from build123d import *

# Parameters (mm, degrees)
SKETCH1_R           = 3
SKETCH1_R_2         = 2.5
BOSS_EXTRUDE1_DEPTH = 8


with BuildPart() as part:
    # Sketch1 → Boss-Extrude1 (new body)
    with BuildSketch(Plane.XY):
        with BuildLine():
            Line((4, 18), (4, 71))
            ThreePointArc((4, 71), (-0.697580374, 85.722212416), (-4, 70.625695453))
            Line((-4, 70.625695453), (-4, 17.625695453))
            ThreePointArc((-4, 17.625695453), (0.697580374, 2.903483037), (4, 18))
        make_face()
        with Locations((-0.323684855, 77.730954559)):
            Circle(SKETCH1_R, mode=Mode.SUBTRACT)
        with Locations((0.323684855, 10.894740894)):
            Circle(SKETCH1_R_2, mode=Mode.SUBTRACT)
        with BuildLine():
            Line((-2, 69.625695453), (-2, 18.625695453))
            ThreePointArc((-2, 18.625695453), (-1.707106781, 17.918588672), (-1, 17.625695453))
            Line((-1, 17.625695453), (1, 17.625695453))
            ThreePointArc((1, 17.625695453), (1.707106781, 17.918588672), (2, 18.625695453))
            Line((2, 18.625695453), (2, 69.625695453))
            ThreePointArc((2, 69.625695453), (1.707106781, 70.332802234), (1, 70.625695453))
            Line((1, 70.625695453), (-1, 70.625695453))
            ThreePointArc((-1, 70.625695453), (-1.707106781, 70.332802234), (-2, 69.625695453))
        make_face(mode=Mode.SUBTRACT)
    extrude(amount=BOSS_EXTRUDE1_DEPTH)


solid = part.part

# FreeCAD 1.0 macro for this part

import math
import FreeCAD as App
import Part
import Sketcher
from FreeCAD import Vector

doc = App.newDocument("Part")
body = doc.addObject("PartDesign::Body", "Body")

# Sketch on XY plane
sketch1 = doc.addObject("Sketcher::SketchObject", "Sketch")
body.addObject(sketch1)
sketch1.AttachmentSupport = (doc.XY_Plane, [""])
sketch1.MapMode = "FlatFace"
sketch1.addGeometry([
    Part.LineSegment(Vector(4, 18, 0), Vector(4, 71, 0)),  # 0
    Part.ArcOfCircle(Part.Circle(Vector(-0.323685, 77.730955, 0), Vector(0, 0, 1), 8), math.radians(-57.285), math.radians(242.642611)),  # 1
    Part.LineSegment(Vector(-4, 70.625695, 0), Vector(-4, 17.625695, 0)),  # 2
    Part.ArcOfCircle(Part.Circle(Vector(0.323685, 10.894741, 0), Vector(0, 0, 1), 8), math.radians(122.715), math.radians(422.642611)),  # 3
    Part.Circle(Vector(0.323685, 10.894741, 0), Vector(0, 0, 1), 2.5),  # 4
    Part.LineSegment(Vector(-2, 18.625695, 0), Vector(-2, 69.625695, 0)),  # 5
    Part.ArcOfCircle(Part.Circle(Vector(-1, 69.625695, 0), Vector(0, 0, 1), 1), math.radians(90), math.radians(180)),  # 6
    Part.LineSegment(Vector(-1, 70.625695, 0), Vector(1, 70.625695, 0)),  # 7
    Part.ArcOfCircle(Part.Circle(Vector(1, 69.625695, 0), Vector(0, 0, 1), 1), math.radians(0), math.radians(90)),  # 8
    Part.LineSegment(Vector(2, 69.625695, 0), Vector(2, 18.625695, 0)),  # 9
    Part.ArcOfCircle(Part.Circle(Vector(1, 18.625695, 0), Vector(0, 0, 1), 1), math.radians(-90), math.radians(0)),  # 10
    Part.LineSegment(Vector(1, 17.625695, 0), Vector(-1, 17.625695, 0)),  # 11
    Part.ArcOfCircle(Part.Circle(Vector(-1, 18.625695, 0), Vector(0, 0, 1), 1), math.radians(-180), math.radians(-90)),  # 12
    Part.Circle(Vector(-0.323685, 77.730955, 0), Vector(0, 0, 1), 3),  # 13
], False)
sketch1.addConstraint([
    Sketcher.Constraint("Coincident", 0, 2, 1, 1),
    Sketcher.Constraint("Coincident", 1, 2, 2, 1),
    Sketcher.Constraint("Coincident", 2, 2, 3, 1),
    Sketcher.Constraint("Coincident", 3, 2, 0, 1),
    Sketcher.Constraint("Tangent", 5, 2, 6, 2),
    Sketcher.Constraint("Tangent", 6, 1, 7, 1),
    Sketcher.Constraint("Tangent", 7, 2, 8, 2),
    Sketcher.Constraint("Tangent", 8, 1, 9, 1),
    Sketcher.Constraint("Tangent", 9, 2, 10, 2),
    Sketcher.Constraint("Tangent", 10, 1, 11, 1),
    Sketcher.Constraint("Tangent", 11, 2, 12, 2),
    Sketcher.Constraint("Tangent", 12, 1, 5, 1),
    Sketcher.Constraint("Vertical", 0),
    Sketcher.Constraint("Vertical", 2),
    Sketcher.Constraint("Vertical", 5),
    Sketcher.Constraint("Horizontal", 7),
    Sketcher.Constraint("Vertical", 9),
    Sketcher.Constraint("Horizontal", 11),
    Sketcher.Constraint("Coincident", 4, 3, 3, 3),
    Sketcher.Constraint("Coincident", 13, 3, 1, 3),
    Sketcher.Constraint("Equal", 1, 3),
    Sketcher.Constraint("Equal", 6, 8),
    Sketcher.Constraint("Equal", 8, 10),
    Sketcher.Constraint("Equal", 10, 12),
    Sketcher.Constraint("Horizontal", 1, 2, 6, 1),
    Sketcher.Constraint("Horizontal", 2, 2, 10, 1),
    Sketcher.Constraint("Equal", 0, 2),
    Sketcher.Constraint("Diameter", 4, 5.0),
    Sketcher.Constraint("Diameter", 13, 6.0),
    Sketcher.Constraint("Radius", 1, 8.0),
    Sketcher.Constraint("Radius", 6, 1.0),
    Sketcher.Constraint("DistanceX", 7, 1, 7, 2, 2.0),
    Sketcher.Constraint("DistanceY", 0, 1, 0, 2, 53.0),
    Sketcher.Constraint("DistanceX", 6, 3, -1, 1, 1.0),
    Sketcher.Constraint("DistanceX", -1, 1, 0, 2, 4.0),
    Sketcher.Constraint("DistanceY", -1, 1, 0, 2, 71.0),
    Sketcher.Constraint("DistanceX", 1, 2, -1, 1, 4.0),
    Sketcher.Constraint("DistanceY", -1, 1, 3, 3, 10.894741),
])
pad1 = doc.addObject("PartDesign::Pad", "Pad")
body.addObject(pad1)
pad1.Profile = sketch1
pad1.Length = 8

doc.recompute()
